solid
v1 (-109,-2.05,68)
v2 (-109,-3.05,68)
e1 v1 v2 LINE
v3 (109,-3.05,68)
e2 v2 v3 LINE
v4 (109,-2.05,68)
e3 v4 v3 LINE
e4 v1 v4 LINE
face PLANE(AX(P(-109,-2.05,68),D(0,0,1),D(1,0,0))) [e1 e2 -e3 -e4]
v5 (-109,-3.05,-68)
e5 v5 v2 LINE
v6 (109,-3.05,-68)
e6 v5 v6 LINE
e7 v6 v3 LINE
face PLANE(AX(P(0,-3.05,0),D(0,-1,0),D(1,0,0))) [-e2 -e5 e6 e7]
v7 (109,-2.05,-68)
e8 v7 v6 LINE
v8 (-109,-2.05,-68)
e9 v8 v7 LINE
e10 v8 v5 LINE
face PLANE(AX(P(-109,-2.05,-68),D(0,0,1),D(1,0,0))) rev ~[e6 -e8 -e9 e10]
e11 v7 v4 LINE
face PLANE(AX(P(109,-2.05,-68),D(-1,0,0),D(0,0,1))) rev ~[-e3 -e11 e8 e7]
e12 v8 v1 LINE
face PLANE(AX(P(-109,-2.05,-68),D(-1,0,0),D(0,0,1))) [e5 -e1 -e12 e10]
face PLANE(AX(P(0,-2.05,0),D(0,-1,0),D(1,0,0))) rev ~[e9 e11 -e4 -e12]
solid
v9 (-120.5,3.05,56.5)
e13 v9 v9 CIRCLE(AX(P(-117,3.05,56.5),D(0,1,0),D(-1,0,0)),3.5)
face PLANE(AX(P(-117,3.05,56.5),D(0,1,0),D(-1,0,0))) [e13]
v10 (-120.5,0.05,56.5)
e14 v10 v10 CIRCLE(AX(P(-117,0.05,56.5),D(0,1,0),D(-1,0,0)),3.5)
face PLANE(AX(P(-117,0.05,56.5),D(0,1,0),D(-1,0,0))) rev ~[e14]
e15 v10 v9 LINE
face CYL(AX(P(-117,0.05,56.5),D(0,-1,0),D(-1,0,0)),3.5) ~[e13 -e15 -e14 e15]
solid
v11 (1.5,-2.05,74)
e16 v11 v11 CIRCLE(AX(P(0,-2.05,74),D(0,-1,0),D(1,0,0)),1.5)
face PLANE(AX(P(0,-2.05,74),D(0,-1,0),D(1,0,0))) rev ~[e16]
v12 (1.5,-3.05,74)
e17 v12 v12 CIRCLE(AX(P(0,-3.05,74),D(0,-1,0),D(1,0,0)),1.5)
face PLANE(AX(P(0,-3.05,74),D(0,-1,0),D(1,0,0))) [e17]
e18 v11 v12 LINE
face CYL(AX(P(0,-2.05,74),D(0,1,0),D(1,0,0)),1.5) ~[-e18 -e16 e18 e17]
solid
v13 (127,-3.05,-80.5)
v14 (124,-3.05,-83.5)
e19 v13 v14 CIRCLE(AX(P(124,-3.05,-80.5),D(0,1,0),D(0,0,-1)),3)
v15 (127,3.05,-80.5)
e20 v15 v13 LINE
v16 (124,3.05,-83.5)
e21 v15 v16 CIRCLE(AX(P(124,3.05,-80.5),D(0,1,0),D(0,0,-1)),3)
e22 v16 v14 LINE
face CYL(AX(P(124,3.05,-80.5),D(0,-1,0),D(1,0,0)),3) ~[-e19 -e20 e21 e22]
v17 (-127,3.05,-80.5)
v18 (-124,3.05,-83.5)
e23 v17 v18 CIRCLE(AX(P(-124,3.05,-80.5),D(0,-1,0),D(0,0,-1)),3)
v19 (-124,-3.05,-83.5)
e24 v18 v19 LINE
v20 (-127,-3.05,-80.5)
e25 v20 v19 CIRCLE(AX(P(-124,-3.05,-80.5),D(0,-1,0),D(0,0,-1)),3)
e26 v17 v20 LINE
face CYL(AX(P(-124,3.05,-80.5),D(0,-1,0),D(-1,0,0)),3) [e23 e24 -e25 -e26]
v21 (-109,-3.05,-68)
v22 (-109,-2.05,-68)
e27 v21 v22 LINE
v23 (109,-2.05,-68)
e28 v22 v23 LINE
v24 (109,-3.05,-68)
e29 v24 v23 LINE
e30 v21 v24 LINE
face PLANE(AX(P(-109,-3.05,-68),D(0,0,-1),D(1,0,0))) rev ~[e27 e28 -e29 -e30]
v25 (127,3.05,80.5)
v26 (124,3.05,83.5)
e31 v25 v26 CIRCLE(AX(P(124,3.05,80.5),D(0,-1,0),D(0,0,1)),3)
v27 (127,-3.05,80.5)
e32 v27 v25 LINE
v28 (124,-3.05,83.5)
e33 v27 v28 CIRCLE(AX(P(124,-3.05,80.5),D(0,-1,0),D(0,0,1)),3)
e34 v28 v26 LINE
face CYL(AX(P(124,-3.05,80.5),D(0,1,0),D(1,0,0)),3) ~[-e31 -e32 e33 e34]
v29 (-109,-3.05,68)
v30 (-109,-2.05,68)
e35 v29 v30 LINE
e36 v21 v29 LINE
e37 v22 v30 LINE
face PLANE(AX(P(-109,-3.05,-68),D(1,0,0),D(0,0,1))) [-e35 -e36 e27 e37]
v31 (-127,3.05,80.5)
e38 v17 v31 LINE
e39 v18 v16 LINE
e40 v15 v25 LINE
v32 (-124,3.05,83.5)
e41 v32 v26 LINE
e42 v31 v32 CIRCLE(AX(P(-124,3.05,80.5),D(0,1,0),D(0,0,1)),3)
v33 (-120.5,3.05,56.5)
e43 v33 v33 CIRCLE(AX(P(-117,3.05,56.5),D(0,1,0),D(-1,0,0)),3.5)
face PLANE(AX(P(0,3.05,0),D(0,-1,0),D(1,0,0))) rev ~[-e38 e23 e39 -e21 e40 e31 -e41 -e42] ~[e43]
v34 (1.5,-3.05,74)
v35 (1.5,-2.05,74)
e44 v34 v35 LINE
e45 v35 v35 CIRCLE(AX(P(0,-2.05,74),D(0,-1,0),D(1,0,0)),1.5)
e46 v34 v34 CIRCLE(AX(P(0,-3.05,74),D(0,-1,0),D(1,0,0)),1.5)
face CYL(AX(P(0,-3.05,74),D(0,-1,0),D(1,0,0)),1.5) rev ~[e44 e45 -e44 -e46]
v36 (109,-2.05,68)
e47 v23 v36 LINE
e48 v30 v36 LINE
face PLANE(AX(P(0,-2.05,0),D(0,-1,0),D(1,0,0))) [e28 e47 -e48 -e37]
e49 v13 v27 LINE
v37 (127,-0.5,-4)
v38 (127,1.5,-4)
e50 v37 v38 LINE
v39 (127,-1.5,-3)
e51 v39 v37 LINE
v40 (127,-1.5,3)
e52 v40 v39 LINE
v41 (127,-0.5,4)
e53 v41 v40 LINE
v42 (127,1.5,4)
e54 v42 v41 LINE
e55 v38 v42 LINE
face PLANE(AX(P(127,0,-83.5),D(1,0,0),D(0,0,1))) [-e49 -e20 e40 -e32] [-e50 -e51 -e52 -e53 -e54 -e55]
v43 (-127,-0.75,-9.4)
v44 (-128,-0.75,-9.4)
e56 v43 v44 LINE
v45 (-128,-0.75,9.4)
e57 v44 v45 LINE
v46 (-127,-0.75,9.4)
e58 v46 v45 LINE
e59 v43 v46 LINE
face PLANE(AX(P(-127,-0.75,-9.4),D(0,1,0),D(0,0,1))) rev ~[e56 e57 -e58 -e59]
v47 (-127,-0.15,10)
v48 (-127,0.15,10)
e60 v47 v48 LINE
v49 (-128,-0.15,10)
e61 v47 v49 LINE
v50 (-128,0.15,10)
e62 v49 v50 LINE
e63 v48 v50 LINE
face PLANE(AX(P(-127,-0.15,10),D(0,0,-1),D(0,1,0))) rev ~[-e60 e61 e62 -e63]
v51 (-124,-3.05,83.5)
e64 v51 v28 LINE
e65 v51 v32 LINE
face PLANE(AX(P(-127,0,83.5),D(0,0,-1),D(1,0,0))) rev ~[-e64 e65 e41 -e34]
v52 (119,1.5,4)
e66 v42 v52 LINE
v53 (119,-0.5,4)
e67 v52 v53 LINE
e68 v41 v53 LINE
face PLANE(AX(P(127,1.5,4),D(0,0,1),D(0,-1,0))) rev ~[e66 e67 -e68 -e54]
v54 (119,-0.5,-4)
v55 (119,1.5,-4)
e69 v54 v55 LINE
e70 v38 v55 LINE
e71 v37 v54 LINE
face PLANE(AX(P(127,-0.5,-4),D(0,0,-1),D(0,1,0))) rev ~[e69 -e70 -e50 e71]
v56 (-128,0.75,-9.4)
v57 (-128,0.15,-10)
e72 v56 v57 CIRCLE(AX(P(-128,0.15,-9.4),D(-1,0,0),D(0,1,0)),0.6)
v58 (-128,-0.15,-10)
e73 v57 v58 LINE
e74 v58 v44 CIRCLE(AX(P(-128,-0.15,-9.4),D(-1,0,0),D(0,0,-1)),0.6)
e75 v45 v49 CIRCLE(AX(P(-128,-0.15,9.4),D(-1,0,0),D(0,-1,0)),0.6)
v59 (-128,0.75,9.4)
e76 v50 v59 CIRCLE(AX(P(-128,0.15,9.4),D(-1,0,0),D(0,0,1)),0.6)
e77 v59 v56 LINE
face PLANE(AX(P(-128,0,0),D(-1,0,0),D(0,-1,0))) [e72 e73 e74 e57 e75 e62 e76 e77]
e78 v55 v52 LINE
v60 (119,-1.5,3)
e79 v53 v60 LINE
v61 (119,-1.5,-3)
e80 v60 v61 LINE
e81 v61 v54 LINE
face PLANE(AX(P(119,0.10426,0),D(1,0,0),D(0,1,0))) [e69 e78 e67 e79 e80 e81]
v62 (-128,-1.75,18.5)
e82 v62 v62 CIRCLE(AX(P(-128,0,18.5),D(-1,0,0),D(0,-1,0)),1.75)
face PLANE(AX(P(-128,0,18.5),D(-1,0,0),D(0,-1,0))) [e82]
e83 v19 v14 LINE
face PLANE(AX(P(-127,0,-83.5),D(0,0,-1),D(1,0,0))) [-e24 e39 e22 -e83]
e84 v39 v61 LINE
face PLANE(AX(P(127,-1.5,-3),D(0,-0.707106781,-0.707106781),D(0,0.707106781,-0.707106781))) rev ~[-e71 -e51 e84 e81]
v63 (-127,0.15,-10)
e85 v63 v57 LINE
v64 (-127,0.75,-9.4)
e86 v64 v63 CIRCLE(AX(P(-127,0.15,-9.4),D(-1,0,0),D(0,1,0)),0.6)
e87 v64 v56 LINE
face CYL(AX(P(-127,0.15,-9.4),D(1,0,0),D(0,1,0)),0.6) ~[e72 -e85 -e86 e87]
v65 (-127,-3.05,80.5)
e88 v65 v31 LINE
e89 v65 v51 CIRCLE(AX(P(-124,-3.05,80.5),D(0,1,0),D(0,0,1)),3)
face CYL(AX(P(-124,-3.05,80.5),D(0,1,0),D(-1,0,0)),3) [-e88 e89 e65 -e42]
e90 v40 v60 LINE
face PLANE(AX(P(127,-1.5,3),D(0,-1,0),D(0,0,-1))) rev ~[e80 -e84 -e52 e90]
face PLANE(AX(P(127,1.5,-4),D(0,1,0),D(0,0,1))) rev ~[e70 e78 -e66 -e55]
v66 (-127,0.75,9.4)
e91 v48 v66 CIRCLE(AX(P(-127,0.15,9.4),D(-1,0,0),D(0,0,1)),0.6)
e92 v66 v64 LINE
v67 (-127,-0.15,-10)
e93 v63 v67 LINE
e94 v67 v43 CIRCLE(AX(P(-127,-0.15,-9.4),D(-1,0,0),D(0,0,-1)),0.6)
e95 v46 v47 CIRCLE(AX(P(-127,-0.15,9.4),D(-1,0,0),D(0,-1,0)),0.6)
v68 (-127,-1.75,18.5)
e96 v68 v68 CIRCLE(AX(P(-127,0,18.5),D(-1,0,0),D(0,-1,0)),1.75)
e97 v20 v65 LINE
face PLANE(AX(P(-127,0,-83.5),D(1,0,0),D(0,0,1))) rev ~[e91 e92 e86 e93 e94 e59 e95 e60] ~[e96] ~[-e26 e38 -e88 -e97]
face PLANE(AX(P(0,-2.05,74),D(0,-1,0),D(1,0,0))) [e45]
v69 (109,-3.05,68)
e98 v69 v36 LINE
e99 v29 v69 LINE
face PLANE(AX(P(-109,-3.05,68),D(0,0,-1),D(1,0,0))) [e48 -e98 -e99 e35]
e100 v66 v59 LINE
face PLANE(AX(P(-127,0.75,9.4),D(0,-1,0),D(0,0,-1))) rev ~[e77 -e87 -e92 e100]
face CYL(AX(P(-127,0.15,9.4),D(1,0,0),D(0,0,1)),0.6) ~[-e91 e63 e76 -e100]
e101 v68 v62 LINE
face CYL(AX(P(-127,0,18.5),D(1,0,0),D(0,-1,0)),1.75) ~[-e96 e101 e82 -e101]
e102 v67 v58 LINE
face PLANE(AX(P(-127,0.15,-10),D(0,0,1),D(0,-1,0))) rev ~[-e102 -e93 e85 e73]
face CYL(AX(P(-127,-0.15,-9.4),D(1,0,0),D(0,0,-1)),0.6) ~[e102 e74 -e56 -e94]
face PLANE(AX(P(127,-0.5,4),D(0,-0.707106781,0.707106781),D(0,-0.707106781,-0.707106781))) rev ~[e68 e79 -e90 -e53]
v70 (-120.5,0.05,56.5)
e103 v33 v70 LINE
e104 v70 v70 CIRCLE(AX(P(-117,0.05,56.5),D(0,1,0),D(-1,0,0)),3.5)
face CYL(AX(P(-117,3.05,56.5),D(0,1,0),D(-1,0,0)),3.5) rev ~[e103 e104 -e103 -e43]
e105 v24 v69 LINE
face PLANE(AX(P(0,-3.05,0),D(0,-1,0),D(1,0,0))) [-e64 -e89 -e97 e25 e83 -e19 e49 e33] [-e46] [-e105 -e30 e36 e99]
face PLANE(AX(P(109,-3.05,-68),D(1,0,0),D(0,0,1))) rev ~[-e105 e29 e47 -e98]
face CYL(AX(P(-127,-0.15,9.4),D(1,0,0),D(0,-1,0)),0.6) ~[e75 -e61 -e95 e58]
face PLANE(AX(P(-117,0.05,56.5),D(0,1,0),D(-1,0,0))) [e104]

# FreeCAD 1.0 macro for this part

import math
import FreeCAD as App
import Part
import Sketcher

V = App.Vector


def edges_at(feature, points):
    """Names of the edges that pass closest to the given points."""
    edges = feature.Shape.Edges
    near = lambda p: min(range(len(edges)), key=lambda i: edges[i].distToShape(Part.Vertex(*p))[0])
    return sorted({f"Edge{near(p) + 1}" for p in points})


def add_polygon(sketch, points):
    """Adds a closed chain of lines whose ends are joined by coincident constraints."""
    first, n = sketch.GeometryCount, len(points)
    for a, b in zip(points, points[1:] + points[:1]):
        sketch.addGeometry(Part.LineSegment(App.Vector(*a, 0), App.Vector(*b, 0)), False)
    for i in range(n):
        sketch.addConstraint(Sketcher.Constraint("Coincident", first + i, 2, first + (i + 1) % n, 1))

doc = App.newDocument("Part")
body = doc.addObject("PartDesign::Body", "Body")

sketch1 = body.newObject("Sketcher::SketchObject", "Sketch")
sketch1.AttachmentSupport = (doc.getObject("XZ_Plane"), [""])
sketch1.MapMode = "FlatFace"
add_polygon(sketch1, [(-127, 83.5), (-127, -83.5), (127, -83.5), (127, 83.5)])
sketch1.addConstraint([
    Sketcher.Constraint("Vertical", 0),
    Sketcher.Constraint("Horizontal", 1),
    Sketcher.Constraint("Vertical", 2),
    Sketcher.Constraint("Horizontal", 3),
    Sketcher.Constraint("Symmetric", 0, 2, 2, 2, -1, 1),
    Sketcher.Constraint("DistanceX", 1, 1, 1, 2, 254.0),
    Sketcher.Constraint("DistanceY", 0, 2, 0, 1, 167.0),
])
pad1 = body.newObject("PartDesign::Pad", "Pad")
pad1.Profile = sketch1
pad1.Length = 6.1
pad1.Midplane = True
doc.recompute()

fillet = body.newObject("PartDesign::Fillet", "Fillet")
fillet.Base = (pad1, edges_at(pad1, [
    (127, 0, 83.5),
    (127, 0, -83.5),
    (-127, 0, -83.5),
    (-127, 0, 83.5),
]))
fillet.Radius = 3

sketch2 = body.newObject("Sketcher::SketchObject", "Sketch001")
sketch2.AttachmentSupport = (doc.getObject("XZ_Plane"), [""])
sketch2.MapMode = "FlatFace"
sketch2.AttachmentOffset = App.Placement(V(0, 0, 3.05), App.Rotation())
add_polygon(sketch2, [(-109, 68), (-109, -68), (109, -68), (109, 68)])
sketch2.addGeometry(Part.Circle(V(0, 74, 0), V(0, 0, 1), 1.5), False)
sketch2.addConstraint([
    Sketcher.Constraint("Vertical", 0),
    Sketcher.Constraint("Horizontal", 1),
    Sketcher.Constraint("Vertical", 2),
    Sketcher.Constraint("Horizontal", 3),
    Sketcher.Constraint("Symmetric", 0, 2, 2, 2, -1, 1),
    Sketcher.Constraint("PointOnObject", 4, 3, -2),
    Sketcher.Constraint("Diameter", 4, 3.0),
    Sketcher.Constraint("DistanceX", 1, 1, 1, 2, 218.0),
    Sketcher.Constraint("DistanceY", 0, 2, 0, 1, 136.0),
    Sketcher.Constraint("DistanceY", -1, 1, 4, 3, 74.0),
])
pocket1 = body.newObject("PartDesign::Pocket", "Pocket")
pocket1.Profile = sketch2
pocket1.Length = 1

sketch3 = body.newObject("Sketcher::SketchObject", "Sketch002")
sketch3.AttachmentSupport = (doc.getObject("XZ_Plane"), [""])
sketch3.MapMode = "FlatFace"
sketch3.AttachmentOffset = App.Placement(V(0, 0, -3.05), App.Rotation())
sketch3.addGeometry(Part.Circle(V(-117, 56.5, 0), V(0, 0, 1), 3.5), False)
sketch3.addConstraint([
    Sketcher.Constraint("Diameter", 0, 7.0),
    Sketcher.Constraint("DistanceX", 0, 3, -1, 1, 117.0),
    Sketcher.Constraint("DistanceY", -1, 1, 0, 3, 56.5),
])
pocket2 = body.newObject("PartDesign::Pocket", "Pocket001")
pocket2.Profile = sketch3
pocket2.Length = 3
pocket2.Reversed = True

sketch4 = body.newObject("Sketcher::SketchObject", "Sketch003")
sketch4.AttachmentSupport = (doc.getObject("YZ_Plane"), [""])
sketch4.MapMode = "FlatFace"
sketch4.AttachmentOffset = App.Placement(V(0, 0, -127), App.Rotation())
sketch4.addGeometry([
    Part.Circle(V(0, 18.5, 0), V(0, 0, 1), 1.75),
    Part.LineSegment(V(-0.15, 10, 0), V(0.15, 10, 0)),
    Part.ArcOfCircle(Part.Circle(V(0.15, 9.4, 0), V(0, 0, 1), 0.6), math.radians(0), math.radians(90)),
    Part.LineSegment(V(0.75, 9.4, 0), V(0.75, -9.4, 0)),
    Part.ArcOfCircle(Part.Circle(V(0.15, -9.4, 0), V(0, 0, 1), 0.6), math.radians(-90), math.radians(0)),
    Part.LineSegment(V(0.15, -10, 0), V(-0.15, -10, 0)),
    Part.ArcOfCircle(Part.Circle(V(-0.15, -9.4, 0), V(0, 0, 1), 0.6), math.radians(180), math.radians(270)),
    Part.LineSegment(V(-0.75, -9.4, 0), V(-0.75, 9.4, 0)),
    Part.ArcOfCircle(Part.Circle(V(-0.15, 9.4, 0), V(0, 0, 1), 0.6), math.radians(90), math.radians(180)),
], False)
sketch4.addConstraint([
    Sketcher.Constraint("Tangent", 1, 2, 2, 2),
    Sketcher.Constraint("Tangent", 2, 1, 3, 1),
    Sketcher.Constraint("Tangent", 3, 2, 4, 2),
    Sketcher.Constraint("Tangent", 4, 1, 5, 1),
    Sketcher.Constraint("Tangent", 5, 2, 6, 2),
    Sketcher.Constraint("Tangent", 6, 1, 7, 1),
    Sketcher.Constraint("Tangent", 7, 2, 8, 2),
    Sketcher.Constraint("Tangent", 8, 1, 1, 1),
    Sketcher.Constraint("Horizontal", 1),
    Sketcher.Constraint("Vertical", 3),
    Sketcher.Constraint("Horizontal", 5),
    Sketcher.Constraint("Vertical", 7),
    Sketcher.Constraint("Equal", 2, 4),
    Sketcher.Constraint("Equal", 4, 6),
    Sketcher.Constraint("Equal", 6, 8),
    Sketcher.Constraint("Symmetric", 2, 3, 6, 3, -1, 1),
    Sketcher.Constraint("PointOnObject", 0, 3, -2),
    Sketcher.Constraint("Diameter", 0, 3.5),
    Sketcher.Constraint("Radius", 2, 0.6),
    Sketcher.Constraint("DistanceX", 1, 1, 1, 2, 0.3),
    Sketcher.Constraint("DistanceY", 3, 2, 3, 1, 18.8),
    Sketcher.Constraint("DistanceY", -1, 1, 0, 3, 18.5),
])
pad2 = body.newObject("PartDesign::Pad", "Pad001")
pad2.Profile = sketch4
pad2.Length = 1
pad2.Reversed = True

sketch5 = body.newObject("Sketcher::SketchObject", "Sketch004")
sketch5.AttachmentSupport = (doc.getObject("YZ_Plane"), [""])
sketch5.MapMode = "FlatFace"
sketch5.AttachmentOffset = App.Placement(V(0, 0, 127), App.Rotation())
add_polygon(sketch5, [(1.5, -4), (1.5, 4), (-0.5, 4), (-1.5, 3), (-1.5, -3), (-0.5, -4)])
sketch5.addConstraint([
    Sketcher.Constraint("Vertical", 0),
    Sketcher.Constraint("Horizontal", 1),
    Sketcher.Constraint("Vertical", 3),
    Sketcher.Constraint("Horizontal", 5),
    Sketcher.Constraint("Symmetric", 1, 2, 4, 2, -1),
    Sketcher.Constraint("Perpendicular", 2, 4),
    Sketcher.Constraint("Equal", 2, 4),
    Sketcher.Constraint("DistanceX", 1, 2, 1, 1, 2.0),
    Sketcher.Constraint("DistanceY", 0, 1, 0, 2, 8.0),
    Sketcher.Constraint("DistanceY", 3, 2, 3, 1, 6.0),
    Sketcher.Constraint("DistanceX", -1, 1, 0, 2, 1.5),
])
pocket3 = body.newObject("PartDesign::Pocket", "Pocket002")
pocket3.Profile = sketch5
pocket3.Length = 8
body2 = doc.addObject("PartDesign::Body", "Body001")

sketch6 = body2.newObject("Sketcher::SketchObject", "Sketch005")
sketch6.AttachmentSupport = (doc.getObject("XZ_Plane001"), [""])
sketch6.MapMode = "FlatFace"
sketch6.AttachmentOffset = App.Placement(V(0, 0, 2.05), App.Rotation())
add_polygon(sketch6, [(-109, 68), (-109, -68), (109, -68), (109, 68)])
sketch6.addConstraint([
    Sketcher.Constraint("Vertical", 0),
    Sketcher.Constraint("Horizontal", 1),
    Sketcher.Constraint("Vertical", 2),
    Sketcher.Constraint("Horizontal", 3),
    Sketcher.Constraint("Symmetric", 0, 2, 2, 2, -1, 1),
    Sketcher.Constraint("DistanceX", 1, 1, 1, 2, 218.0),
    Sketcher.Constraint("DistanceY", 0, 2, 0, 1, 136.0),
])
pad3 = body2.newObject("PartDesign::Pad", "Pad002")
pad3.Profile = sketch6
pad3.Length = 1
body3 = doc.addObject("PartDesign::Body", "Body002")

sketch7 = body3.newObject("Sketcher::SketchObject", "Sketch006")
sketch7.AttachmentSupport = (doc.getObject("XZ_Plane002"), [""])
sketch7.MapMode = "FlatFace"
sketch7.AttachmentOffset = App.Placement(V(0, 0, 2.05), App.Rotation())
sketch7.addGeometry(Part.Circle(V(0, 74, 0), V(0, 0, 1), 1.5), False)
sketch7.addConstraint([
    Sketcher.Constraint("PointOnObject", 0, 3, -2),
    Sketcher.Constraint("Diameter", 0, 3.0),
    Sketcher.Constraint("DistanceY", -1, 1, 0, 3, 74.0),
])
pad4 = body3.newObject("PartDesign::Pad", "Pad003")
pad4.Profile = sketch7
pad4.Length = 1
body4 = doc.addObject("PartDesign::Body", "Body003")

sketch8 = body4.newObject("Sketcher::SketchObject", "Sketch007")
sketch8.AttachmentSupport = (doc.getObject("XZ_Plane003"), [""])
sketch8.MapMode = "FlatFace"
sketch8.AttachmentOffset = App.Placement(V(0, 0, -0.05), App.Rotation())
sketch8.addGeometry(Part.Circle(V(-117, 56.5, 0), V(0, 0, 1), 3.5), False)
sketch8.addConstraint([
    Sketcher.Constraint("Diameter", 0, 7.0),
    Sketcher.Constraint("DistanceX", 0, 3, -1, 1, 117.0),
    Sketcher.Constraint("DistanceY", -1, 1, 0, 3, 56.5),
])
pad5 = body4.newObject("PartDesign::Pad", "Pad004")
pad5.Profile = sketch8
pad5.Length = 3
pad5.Reversed = True

doc.recompute()
